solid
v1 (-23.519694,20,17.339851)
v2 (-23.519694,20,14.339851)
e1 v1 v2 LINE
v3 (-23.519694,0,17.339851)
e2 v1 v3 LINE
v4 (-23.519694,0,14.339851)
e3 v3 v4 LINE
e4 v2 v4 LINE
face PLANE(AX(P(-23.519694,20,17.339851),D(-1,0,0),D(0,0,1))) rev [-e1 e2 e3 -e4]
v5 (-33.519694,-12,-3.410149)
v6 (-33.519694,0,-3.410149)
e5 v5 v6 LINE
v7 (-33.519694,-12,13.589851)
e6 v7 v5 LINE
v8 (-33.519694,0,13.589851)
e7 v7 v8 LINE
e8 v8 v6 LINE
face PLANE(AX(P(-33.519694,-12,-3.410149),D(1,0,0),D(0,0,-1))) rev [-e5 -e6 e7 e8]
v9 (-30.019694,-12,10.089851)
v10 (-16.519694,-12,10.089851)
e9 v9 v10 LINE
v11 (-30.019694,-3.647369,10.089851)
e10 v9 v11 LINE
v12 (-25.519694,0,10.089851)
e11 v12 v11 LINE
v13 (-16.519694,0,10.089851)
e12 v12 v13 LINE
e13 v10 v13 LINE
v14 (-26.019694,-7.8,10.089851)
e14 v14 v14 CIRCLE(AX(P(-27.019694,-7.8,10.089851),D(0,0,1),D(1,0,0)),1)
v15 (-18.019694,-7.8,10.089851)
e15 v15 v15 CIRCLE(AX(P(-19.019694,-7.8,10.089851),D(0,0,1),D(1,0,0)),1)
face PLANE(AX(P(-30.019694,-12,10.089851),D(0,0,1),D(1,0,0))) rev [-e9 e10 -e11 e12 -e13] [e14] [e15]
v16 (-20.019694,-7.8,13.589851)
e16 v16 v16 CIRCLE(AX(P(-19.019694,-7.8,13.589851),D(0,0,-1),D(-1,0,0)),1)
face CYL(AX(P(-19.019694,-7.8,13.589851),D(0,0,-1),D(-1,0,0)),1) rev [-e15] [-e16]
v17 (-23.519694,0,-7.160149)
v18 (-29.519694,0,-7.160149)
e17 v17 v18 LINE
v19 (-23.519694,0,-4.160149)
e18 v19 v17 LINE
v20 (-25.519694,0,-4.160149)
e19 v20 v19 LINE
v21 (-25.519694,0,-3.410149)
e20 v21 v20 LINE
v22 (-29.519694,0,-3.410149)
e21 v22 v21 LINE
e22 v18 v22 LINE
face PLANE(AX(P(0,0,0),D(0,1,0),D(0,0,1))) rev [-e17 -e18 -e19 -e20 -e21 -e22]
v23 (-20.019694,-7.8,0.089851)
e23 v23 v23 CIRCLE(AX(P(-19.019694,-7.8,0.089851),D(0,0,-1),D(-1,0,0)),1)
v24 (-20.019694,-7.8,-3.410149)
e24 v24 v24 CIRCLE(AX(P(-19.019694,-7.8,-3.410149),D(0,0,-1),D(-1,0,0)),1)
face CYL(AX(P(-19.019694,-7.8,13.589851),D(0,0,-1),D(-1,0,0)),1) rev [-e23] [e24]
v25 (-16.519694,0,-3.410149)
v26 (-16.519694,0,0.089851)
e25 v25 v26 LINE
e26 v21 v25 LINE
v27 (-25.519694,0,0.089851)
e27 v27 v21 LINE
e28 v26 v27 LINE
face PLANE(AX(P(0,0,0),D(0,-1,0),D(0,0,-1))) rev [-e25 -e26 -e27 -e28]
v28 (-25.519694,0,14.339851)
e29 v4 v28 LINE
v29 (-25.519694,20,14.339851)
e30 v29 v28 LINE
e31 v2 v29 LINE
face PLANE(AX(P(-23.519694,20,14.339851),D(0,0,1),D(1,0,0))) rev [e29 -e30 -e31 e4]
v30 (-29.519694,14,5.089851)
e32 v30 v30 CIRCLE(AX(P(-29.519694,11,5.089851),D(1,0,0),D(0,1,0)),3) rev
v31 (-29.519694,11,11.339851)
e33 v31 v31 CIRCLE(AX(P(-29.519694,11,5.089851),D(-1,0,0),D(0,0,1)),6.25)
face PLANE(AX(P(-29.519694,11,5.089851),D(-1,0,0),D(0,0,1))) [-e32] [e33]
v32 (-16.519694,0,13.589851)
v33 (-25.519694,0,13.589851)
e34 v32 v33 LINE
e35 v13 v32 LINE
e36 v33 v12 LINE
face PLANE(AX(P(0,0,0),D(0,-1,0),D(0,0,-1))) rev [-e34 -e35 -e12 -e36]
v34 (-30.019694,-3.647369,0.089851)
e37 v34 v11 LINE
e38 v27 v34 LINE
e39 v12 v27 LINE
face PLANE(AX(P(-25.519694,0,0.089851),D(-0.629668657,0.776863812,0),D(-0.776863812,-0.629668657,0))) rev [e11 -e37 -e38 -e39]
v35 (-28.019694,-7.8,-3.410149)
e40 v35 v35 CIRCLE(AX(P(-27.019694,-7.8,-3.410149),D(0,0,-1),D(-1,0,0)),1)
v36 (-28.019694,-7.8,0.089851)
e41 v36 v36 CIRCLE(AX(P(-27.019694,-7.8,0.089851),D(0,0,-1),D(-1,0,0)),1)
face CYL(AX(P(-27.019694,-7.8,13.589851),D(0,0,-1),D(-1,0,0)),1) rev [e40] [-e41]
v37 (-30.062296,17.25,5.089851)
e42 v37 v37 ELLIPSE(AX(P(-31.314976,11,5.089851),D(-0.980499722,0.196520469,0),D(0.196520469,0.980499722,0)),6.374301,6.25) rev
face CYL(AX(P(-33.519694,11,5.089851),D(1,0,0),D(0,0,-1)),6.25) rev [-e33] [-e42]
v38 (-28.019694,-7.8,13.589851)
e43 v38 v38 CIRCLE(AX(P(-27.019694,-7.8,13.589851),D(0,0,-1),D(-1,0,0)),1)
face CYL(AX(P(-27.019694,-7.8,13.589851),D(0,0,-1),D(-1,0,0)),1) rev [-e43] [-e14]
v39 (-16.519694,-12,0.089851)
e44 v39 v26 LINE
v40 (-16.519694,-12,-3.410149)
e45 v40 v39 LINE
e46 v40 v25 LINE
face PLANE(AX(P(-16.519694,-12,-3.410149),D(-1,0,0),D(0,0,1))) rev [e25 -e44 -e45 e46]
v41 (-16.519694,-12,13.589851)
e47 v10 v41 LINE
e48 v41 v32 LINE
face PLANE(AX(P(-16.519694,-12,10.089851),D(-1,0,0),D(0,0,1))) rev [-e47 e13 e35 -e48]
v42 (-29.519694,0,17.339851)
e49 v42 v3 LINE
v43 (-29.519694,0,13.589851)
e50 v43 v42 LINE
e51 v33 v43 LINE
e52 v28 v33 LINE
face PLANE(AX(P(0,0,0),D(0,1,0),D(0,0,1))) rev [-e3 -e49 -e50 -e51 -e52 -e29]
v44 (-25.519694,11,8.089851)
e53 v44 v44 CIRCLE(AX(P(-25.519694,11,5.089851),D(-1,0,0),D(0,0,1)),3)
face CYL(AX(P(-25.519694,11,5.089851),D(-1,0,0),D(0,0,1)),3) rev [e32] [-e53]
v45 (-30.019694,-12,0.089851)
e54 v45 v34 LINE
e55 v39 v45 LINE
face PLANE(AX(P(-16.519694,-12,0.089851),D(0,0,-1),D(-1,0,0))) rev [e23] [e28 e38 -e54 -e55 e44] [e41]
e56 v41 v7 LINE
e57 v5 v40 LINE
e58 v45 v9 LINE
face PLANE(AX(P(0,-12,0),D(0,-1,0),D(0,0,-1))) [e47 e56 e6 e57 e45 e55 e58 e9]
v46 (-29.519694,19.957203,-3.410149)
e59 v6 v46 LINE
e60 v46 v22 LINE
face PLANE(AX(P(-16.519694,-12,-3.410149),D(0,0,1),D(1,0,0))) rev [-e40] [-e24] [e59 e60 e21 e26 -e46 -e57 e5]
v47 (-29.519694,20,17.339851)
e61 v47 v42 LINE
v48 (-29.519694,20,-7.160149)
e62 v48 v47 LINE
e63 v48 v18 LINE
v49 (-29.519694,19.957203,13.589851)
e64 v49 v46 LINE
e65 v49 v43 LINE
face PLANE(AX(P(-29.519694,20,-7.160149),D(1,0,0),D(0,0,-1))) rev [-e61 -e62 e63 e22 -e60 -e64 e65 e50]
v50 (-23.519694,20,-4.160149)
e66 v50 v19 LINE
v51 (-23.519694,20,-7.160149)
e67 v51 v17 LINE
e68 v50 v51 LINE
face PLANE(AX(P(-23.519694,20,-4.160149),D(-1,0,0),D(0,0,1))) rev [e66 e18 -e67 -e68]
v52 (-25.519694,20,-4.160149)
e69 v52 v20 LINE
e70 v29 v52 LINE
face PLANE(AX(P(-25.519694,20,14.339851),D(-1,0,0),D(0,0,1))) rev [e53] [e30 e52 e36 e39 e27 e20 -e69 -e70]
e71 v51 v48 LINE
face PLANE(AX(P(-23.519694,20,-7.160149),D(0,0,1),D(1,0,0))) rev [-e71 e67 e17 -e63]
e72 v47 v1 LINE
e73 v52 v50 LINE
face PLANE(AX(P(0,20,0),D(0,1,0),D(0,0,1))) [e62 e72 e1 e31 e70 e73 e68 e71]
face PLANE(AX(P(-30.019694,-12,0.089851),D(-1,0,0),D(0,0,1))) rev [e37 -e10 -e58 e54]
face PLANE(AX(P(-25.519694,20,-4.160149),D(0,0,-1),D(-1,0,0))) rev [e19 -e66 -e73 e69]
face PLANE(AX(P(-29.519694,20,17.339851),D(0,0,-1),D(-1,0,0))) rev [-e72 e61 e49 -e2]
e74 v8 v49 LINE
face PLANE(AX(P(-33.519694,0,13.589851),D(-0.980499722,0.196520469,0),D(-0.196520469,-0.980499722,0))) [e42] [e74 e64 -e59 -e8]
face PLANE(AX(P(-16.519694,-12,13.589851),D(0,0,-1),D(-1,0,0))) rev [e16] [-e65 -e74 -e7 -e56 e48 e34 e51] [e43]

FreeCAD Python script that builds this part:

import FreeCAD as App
import Part
import Sketcher

V = App.Vector


def add_polygon(sketch, points):
    """Adds a closed chain of lines whose ends are joined by coincident constraints."""
    first, n = sketch.GeometryCount, len(points)
    for a, b in zip(points, points[1:] + points[:1]):
        sketch.addGeometry(Part.LineSegment(App.Vector(*a, 0), App.Vector(*b, 0)), False)
    for i in range(n):
        sketch.addConstraint(Sketcher.Constraint("Coincident", first + i, 2, first + (i + 1) % n, 1))

doc = App.newDocument("Part")
body = doc.addObject("PartDesign::Body", "Body")

# Sketch on XZ plane
sketch1 = body.newObject("Sketcher::SketchObject", "Sketch")
sketch1.AttachmentSupport = (doc.getObject("XZ_Plane"), [""])
sketch1.MapMode = "FlatFace"
add_polygon(sketch1, [(-29.5, -7.2), (-29.5, 17.3), (-23.5, 17.3), (-23.5, 14.3), (-25.5, 14.3), (-25.5, -4.2), (-23.5, -4.2), (-23.5, -7.2)])  # lines 0-7
sketch1.addConstraint(Sketcher.Constraint("Vertical", 0))
sketch1.addConstraint(Sketcher.Constraint("Horizontal", 1))
sketch1.addConstraint(Sketcher.Constraint("Vertical", 2))
sketch1.addConstraint(Sketcher.Constraint("Horizontal", 3))
sketch1.addConstraint(Sketcher.Constraint("Vertical", 4))
sketch1.addConstraint(Sketcher.Constraint("Horizontal", 5))
sketch1.addConstraint(Sketcher.Constraint("Vertical", 6))
sketch1.addConstraint(Sketcher.Constraint("Horizontal", 7))
sketch1.addConstraint(Sketcher.Constraint("Vertical", 2, 2, 5, 2))
sketch1.addConstraint(Sketcher.Constraint("Equal", 2, 6))
sketch1.addConstraint(Sketcher.Constraint("DistanceX", 1, 1, 1, 2, 6.0))
sketch1.addConstraint(Sketcher.Constraint("DistanceX", 3, 2, 3, 1, 2.0))
sketch1.addConstraint(Sketcher.Constraint("DistanceY", 2, 2, 2, 1, 3.0))
sketch1.addConstraint(Sketcher.Constraint("DistanceY", 0, 1, 0, 2, 24.5))
sketch1.addConstraint(Sketcher.Constraint("DistanceY", -1, 1, 0, 2, 17.339851))
sketch1.addConstraint(Sketcher.Constraint("DistanceX", 0, 2, -1, 1, 29.519694))
pad1 = body.newObject("PartDesign::Pad", "Pad")
pad1.Profile = sketch1
pad1.Length = 20
pad1.Reversed = True

# Sketch on YZ plane
sketch2 = body.newObject("Sketcher::SketchObject", "Sketch001")
sketch2.AttachmentSupport = (doc.getObject("YZ_Plane"), [""])
sketch2.MapMode = "FlatFace"
sketch2.AttachmentOffset = App.Placement(V(0, 0, -29.519694), App.Rotation())
sketch2.addGeometry(Part.Circle(V(11, 5.1, 0), V(0, 0, 1), 3), False)
sketch2.addConstraint(Sketcher.Constraint("Diameter", 0, 6.0))
sketch2.addConstraint(Sketcher.Constraint("DistanceX", -1, 1, 0, 3, 11.0))
sketch2.addConstraint(Sketcher.Constraint("DistanceY", -1, 1, 0, 3, 5.089851))
pocket1 = body.newObject("PartDesign::Pocket", "Pocket")
pocket1.Profile = sketch2
pocket1.Length = 4
pocket1.Reversed = True

# Sketch on XZ plane
sketch3 = body.newObject("Sketcher::SketchObject", "Sketch002")
sketch3.AttachmentSupport = (doc.getObject("XZ_Plane"), [""])
sketch3.MapMode = "FlatFace"
add_polygon(sketch3, [(-33.5, -3.4), (-16.5, -3.4), (-16.5, 0.1), (-30, 0.1), (-30, 10.1), (-16.5, 10.1), (-16.5, 13.6), (-33.5, 13.6)])  # lines 0-7
sketch3.addConstraint(Sketcher.Constraint("Horizontal", 0))
sketch3.addConstraint(Sketcher.Constraint("Vertical", 1))
sketch3.addConstraint(Sketcher.Constraint("Horizontal", 2))
sketch3.addConstraint(Sketcher.Constraint("Vertical", 3))
sketch3.addConstraint(Sketcher.Constraint("Horizontal", 4))
sketch3.addConstraint(Sketcher.Constraint("Vertical", 5))
sketch3.addConstraint(Sketcher.Constraint("Horizontal", 6))
sketch3.addConstraint(Sketcher.Constraint("Vertical", 7))
sketch3.addConstraint(Sketcher.Constraint("Vertical", 1, 2, 4, 2))
sketch3.addConstraint(Sketcher.Constraint("Equal", 1, 5))
sketch3.addConstraint(Sketcher.Constraint("Equal", 6, 7))
sketch3.addConstraint(Sketcher.Constraint("DistanceX", 0, 1, 0, 2, 17.0))
sketch3.addConstraint(Sketcher.Constraint("DistanceY", 3, 1, 3, 2, 10.0))
sketch3.addConstraint(Sketcher.Constraint("DistanceX", 2, 2, 2, 1, 13.5))
sketch3.addConstraint(Sketcher.Constraint("DistanceY", 0, 2, -1, 1, 3.410149))
sketch3.addConstraint(Sketcher.Constraint("DistanceX", 0, 2, -1, 1, 16.519694))
pad2 = body.newObject("PartDesign::Pad", "Pad001")
pad2.Profile = sketch3
pad2.Length = 12

# Sketch on XY plane
sketch4 = body.newObject("Sketcher::SketchObject", "Sketch003")
sketch4.AttachmentSupport = (doc.getObject("XY_Plane"), [""])
sketch4.MapMode = "FlatFace"
sketch4.AttachmentOffset = App.Placement(V(0, 0, -3.410149), App.Rotation())
sketch4.addGeometry(Part.Circle(V(-19, -7.8, 0), V(0, 0, 1), 1), False)
sketch4.addGeometry(Part.Circle(V(-27, -7.8, 0), V(0, 0, 1), 1), False)
sketch4.addConstraint(Sketcher.Constraint("Equal", 0, 1))
sketch4.addConstraint(Sketcher.Constraint("Horizontal", 0, 3, 1, 3))
sketch4.addConstraint(Sketcher.Constraint("Diameter", 0, 2.0))
sketch4.addConstraint(Sketcher.Constraint("DistanceX", 1, 3, 0, 3, 8.0))
sketch4.addConstraint(Sketcher.Constraint("DistanceY", 0, 3, -1, 1, 7.8))
sketch4.addConstraint(Sketcher.Constraint("DistanceX", 0, 3, -1, 1, 19.019694))
pocket2 = body.newObject("PartDesign::Pocket", "Pocket001")
pocket2.Profile = sketch4
pocket2.Length = 17
pocket2.Reversed = True

# Sketch on XY plane
sketch5 = body.newObject("Sketcher::SketchObject", "Sketch004")
sketch5.AttachmentSupport = (doc.getObject("XY_Plane"), [""])
sketch5.MapMode = "FlatFace"
sketch5.AttachmentOffset = App.Placement(V(0, 0, -3.410149), App.Rotation())
add_polygon(sketch5, [(-33.5, 0), (-29.5, 20), (-29.5, 0)])  # lines 0-2
sketch5.addConstraint(Sketcher.Constraint("Vertical", 1))
sketch5.addConstraint(Sketcher.Constraint("Horizontal", 2))
sketch5.addConstraint(Sketcher.Constraint("PointOnObject", 1, 2, -1))
sketch5.addConstraint(Sketcher.Constraint("DistanceX", 2, 2, 2, 1, 4.0))
sketch5.addConstraint(Sketcher.Constraint("DistanceY", 1, 2, 1, 1, 19.957203))
sketch5.addConstraint(Sketcher.Constraint("DistanceX", 0, 2, -1, 1, 29.519694))
pad3 = body.newObject("PartDesign::Pad", "Pad002")
pad3.Profile = sketch5
pad3.Length = 17

# Sketch on YZ plane
sketch6 = body.newObject("Sketcher::SketchObject", "Sketch005")
sketch6.AttachmentSupport = (doc.getObject("YZ_Plane"), [""])
sketch6.MapMode = "FlatFace"
sketch6.AttachmentOffset = App.Placement(V(0, 0, -29.519694), App.Rotation())
sketch6.addGeometry(Part.Circle(V(11, 5, 0), V(0, 0, 1), 6), False)
sketch6.addConstraint(Sketcher.Constraint("Diameter", 0, 12.5))
sketch6.addConstraint(Sketcher.Constraint("DistanceX", -1, 1, 0, 3, 11.0))
sketch6.addConstraint(Sketcher.Constraint("DistanceY", -1, 1, 0, 3, 5.089851))
pocket3 = body.newObject("PartDesign::Pocket", "Pocket002")
pocket3.Profile = sketch6
pocket3.Length = 4

# Sketch on XY plane
sketch7 = body.newObject("Sketcher::SketchObject", "Sketch006")
sketch7.AttachmentSupport = (doc.getObject("XY_Plane"), [""])
sketch7.MapMode = "FlatFace"
sketch7.AttachmentOffset = App.Placement(V(0, 0, 10.089851), App.Rotation())
add_polygon(sketch7, [(-25.5, 0), (-30, -3.6), (-30, 0)])  # lines 0-2
sketch7.addConstraint(Sketcher.Constraint("Vertical", 1))
sketch7.addConstraint(Sketcher.Constraint("Horizontal", 2))
sketch7.addConstraint(Sketcher.Constraint("PointOnObject", 1, 2, -1))
sketch7.addConstraint(Sketcher.Constraint("DistanceX", 2, 1, 2, 2, 4.5))
sketch7.addConstraint(Sketcher.Constraint("DistanceY", 1, 1, 1, 2, 3.647369))
sketch7.addConstraint(Sketcher.Constraint("DistanceX", 0, 2, -1, 1, 30.019694))
pad4 = body.newObject("PartDesign::Pad", "Pad003")
pad4.Profile = sketch7
pad4.Length = 10
pad4.Reversed = True

doc.recompute()
